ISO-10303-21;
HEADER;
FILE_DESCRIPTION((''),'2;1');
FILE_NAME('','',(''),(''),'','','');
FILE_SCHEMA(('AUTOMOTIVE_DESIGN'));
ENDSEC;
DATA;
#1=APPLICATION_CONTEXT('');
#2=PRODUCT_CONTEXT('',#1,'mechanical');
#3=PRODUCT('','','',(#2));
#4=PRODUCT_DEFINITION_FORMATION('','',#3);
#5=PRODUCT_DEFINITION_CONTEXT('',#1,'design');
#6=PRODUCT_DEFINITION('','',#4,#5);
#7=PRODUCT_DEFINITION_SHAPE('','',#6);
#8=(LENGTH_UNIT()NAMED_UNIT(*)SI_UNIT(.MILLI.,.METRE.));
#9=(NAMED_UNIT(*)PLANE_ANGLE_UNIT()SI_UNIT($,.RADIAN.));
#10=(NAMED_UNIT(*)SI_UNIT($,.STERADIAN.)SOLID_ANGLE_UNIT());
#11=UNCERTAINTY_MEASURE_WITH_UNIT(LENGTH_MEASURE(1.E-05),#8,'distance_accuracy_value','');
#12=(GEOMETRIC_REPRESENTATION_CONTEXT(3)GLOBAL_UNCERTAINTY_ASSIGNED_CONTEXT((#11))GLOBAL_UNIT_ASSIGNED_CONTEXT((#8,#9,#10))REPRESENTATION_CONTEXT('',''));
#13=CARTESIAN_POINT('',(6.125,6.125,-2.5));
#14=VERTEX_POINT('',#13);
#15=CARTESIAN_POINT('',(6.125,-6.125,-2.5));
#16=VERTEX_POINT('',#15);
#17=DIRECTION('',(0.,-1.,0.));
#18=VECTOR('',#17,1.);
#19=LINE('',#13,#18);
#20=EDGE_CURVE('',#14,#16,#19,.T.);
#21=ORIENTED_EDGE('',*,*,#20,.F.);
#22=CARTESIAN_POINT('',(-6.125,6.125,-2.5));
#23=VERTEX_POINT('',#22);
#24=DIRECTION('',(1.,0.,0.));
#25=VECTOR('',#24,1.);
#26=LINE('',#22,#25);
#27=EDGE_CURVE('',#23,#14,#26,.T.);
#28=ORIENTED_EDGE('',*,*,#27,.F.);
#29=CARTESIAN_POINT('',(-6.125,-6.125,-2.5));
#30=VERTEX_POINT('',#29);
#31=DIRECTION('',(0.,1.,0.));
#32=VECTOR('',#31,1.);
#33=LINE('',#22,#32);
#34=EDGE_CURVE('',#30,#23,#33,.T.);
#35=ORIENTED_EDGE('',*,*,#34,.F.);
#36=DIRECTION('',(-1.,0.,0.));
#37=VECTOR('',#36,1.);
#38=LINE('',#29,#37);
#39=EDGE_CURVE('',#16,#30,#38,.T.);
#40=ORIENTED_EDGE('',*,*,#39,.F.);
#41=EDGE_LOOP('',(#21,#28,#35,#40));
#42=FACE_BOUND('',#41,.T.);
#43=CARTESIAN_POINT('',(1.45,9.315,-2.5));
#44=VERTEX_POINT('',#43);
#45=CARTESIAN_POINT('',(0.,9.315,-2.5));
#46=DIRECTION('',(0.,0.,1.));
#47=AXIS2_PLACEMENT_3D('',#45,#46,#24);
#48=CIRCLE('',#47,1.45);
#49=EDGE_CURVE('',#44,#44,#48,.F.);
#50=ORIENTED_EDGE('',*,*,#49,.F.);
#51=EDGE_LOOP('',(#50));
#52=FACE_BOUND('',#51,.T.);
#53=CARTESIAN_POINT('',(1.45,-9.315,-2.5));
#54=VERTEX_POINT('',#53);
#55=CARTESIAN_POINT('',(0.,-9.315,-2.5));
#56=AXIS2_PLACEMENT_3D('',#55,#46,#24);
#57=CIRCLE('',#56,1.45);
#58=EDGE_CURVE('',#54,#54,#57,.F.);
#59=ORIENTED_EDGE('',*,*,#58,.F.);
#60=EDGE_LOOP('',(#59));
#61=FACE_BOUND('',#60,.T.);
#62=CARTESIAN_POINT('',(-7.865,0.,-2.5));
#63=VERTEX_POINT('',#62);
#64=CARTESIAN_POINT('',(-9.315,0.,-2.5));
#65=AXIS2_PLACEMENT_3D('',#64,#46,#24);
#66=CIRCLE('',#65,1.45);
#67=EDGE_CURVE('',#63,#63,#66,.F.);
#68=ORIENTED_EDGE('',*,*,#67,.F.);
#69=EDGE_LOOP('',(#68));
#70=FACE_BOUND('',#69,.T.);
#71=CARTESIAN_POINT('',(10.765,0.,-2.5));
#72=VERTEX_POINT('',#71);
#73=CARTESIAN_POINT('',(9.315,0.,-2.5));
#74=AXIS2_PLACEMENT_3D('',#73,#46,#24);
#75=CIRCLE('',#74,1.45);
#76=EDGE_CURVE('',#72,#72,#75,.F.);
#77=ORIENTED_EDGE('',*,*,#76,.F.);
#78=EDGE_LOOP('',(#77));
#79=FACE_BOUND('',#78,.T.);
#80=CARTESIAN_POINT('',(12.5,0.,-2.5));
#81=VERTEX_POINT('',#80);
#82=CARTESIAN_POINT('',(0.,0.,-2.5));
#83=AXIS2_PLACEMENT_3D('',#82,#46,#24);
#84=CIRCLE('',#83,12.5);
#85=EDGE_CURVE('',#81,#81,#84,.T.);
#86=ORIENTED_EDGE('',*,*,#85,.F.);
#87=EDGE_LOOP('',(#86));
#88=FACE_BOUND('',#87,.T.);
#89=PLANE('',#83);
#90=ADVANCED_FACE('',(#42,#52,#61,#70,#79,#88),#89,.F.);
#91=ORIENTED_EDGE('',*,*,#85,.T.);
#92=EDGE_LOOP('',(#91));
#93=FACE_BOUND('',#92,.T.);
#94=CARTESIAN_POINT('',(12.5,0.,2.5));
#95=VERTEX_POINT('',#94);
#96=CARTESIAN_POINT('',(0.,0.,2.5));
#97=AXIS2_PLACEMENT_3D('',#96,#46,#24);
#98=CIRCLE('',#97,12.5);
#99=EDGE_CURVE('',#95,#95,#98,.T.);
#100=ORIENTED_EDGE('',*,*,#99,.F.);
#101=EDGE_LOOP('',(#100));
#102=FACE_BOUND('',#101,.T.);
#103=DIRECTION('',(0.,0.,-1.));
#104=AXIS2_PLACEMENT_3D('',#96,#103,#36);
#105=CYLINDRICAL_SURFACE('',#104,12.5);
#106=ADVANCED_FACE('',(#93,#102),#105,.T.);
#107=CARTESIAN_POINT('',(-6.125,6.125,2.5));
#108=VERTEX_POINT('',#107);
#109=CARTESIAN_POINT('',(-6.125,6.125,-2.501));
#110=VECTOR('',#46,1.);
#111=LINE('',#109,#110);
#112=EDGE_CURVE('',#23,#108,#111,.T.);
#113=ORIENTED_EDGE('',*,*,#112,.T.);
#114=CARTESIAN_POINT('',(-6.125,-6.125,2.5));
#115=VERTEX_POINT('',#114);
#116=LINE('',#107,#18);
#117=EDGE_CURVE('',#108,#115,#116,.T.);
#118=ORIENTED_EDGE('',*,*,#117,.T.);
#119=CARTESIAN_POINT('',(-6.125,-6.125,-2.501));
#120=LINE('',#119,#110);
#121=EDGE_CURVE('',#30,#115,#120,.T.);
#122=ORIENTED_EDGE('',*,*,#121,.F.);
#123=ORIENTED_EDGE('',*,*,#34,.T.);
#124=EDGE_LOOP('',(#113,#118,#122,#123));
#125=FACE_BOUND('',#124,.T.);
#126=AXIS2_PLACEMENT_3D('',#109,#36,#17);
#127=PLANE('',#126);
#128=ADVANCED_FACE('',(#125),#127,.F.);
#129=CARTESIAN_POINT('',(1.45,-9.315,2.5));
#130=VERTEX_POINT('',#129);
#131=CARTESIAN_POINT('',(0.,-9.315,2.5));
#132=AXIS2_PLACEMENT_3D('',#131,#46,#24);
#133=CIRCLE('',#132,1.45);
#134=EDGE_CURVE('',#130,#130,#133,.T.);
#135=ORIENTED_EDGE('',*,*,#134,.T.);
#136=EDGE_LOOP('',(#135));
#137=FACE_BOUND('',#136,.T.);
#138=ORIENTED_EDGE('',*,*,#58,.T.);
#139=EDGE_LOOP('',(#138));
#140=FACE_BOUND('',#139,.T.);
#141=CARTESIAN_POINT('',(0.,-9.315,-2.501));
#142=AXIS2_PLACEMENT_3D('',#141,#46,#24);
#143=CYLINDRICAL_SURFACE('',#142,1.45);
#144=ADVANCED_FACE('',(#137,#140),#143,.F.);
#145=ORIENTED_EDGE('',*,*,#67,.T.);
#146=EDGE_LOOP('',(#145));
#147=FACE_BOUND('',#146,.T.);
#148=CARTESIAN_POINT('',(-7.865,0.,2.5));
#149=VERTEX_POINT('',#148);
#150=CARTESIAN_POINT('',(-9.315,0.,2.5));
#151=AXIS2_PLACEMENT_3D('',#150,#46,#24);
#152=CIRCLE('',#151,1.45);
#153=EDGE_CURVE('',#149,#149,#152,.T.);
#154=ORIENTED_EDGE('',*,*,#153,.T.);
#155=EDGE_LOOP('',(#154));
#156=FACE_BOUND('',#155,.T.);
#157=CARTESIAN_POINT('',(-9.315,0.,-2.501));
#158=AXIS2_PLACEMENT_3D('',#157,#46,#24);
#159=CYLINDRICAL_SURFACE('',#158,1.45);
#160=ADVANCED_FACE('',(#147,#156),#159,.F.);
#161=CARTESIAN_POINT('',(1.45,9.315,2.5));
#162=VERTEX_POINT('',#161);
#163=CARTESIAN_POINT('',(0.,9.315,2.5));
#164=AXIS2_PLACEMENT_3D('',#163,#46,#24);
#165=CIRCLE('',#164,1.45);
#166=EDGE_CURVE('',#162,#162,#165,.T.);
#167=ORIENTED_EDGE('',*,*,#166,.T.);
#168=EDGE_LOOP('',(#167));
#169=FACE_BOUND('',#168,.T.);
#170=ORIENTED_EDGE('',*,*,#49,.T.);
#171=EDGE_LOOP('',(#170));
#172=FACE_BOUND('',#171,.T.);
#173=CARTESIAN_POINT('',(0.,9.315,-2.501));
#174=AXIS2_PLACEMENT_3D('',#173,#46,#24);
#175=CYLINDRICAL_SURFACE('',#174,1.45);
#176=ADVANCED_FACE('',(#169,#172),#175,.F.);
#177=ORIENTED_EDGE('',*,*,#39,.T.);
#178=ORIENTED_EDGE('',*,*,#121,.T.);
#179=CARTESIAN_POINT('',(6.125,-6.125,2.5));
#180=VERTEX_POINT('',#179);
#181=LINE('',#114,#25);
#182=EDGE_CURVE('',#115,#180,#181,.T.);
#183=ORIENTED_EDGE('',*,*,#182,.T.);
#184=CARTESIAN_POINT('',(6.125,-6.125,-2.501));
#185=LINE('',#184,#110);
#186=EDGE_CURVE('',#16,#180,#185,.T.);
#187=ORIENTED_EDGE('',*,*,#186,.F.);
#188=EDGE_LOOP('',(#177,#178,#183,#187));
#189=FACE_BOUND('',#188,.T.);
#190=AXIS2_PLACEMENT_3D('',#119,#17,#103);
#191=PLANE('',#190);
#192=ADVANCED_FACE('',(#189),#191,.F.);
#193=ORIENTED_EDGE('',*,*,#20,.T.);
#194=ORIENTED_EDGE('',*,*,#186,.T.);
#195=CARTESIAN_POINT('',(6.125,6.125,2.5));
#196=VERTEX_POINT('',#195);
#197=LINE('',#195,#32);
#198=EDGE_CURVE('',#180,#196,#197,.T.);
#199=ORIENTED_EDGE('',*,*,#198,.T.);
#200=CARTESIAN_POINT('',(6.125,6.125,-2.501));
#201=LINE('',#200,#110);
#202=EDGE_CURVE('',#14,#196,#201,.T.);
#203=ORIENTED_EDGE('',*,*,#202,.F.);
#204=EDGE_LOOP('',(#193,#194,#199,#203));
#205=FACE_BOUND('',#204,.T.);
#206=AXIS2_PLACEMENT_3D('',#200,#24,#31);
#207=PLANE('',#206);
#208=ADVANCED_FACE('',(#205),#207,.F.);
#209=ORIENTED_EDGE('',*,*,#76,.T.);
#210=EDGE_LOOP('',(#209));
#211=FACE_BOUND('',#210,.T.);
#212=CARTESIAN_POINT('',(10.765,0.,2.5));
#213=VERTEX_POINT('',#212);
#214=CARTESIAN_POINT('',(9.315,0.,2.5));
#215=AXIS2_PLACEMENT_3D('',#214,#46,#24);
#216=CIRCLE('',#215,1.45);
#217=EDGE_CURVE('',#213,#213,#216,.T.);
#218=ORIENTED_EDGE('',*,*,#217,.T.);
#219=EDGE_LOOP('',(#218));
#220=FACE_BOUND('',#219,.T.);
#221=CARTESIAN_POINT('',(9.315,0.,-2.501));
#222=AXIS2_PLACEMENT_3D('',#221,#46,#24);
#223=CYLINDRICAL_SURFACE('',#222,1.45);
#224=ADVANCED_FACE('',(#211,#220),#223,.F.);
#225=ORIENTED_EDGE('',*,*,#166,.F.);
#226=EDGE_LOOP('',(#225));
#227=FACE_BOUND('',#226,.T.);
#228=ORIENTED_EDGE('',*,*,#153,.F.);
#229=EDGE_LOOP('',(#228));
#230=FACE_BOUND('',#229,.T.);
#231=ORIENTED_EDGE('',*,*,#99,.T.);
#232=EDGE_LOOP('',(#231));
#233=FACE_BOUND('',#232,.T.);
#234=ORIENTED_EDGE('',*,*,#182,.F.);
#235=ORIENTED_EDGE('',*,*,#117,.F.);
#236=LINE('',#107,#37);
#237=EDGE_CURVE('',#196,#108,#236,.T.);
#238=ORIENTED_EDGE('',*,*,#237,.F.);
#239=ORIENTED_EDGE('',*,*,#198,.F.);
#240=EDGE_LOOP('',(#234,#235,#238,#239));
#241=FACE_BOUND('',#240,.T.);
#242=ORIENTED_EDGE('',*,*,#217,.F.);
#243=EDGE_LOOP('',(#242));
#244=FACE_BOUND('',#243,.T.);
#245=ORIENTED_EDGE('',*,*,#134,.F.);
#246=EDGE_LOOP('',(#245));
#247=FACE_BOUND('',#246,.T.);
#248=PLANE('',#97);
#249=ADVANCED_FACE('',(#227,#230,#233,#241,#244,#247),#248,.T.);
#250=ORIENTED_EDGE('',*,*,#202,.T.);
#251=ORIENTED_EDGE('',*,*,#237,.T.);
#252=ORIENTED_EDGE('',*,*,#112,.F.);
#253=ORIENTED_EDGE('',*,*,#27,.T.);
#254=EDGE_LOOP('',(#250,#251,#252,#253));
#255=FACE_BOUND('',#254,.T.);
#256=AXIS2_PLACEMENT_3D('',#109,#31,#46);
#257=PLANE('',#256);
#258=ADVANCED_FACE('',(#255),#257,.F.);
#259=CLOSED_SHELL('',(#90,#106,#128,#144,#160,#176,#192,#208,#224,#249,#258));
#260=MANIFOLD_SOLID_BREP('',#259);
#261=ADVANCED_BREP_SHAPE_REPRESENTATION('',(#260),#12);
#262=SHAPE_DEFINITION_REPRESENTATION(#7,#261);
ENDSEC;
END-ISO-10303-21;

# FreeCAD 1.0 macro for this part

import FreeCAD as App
import Part
import Sketcher
Q = App.Units.Quantity

doc = App.newDocument("Part")
body = doc.addObject("PartDesign::Body", "Body")

sketch1 = body.newObject("Sketcher::SketchObject", "Sketch")
sketch1.AttachmentSupport = (doc.getObject("XY_Plane"), [""])
sketch1.MapMode = "FlatFace"
sketch1.addGeometry(Part.Circle(App.Vector(0, 0, 0), App.Vector(0, 0, 1), 12), False)
sketch1.addConstraint([
    Sketcher.Constraint("Coincident", 0, 3, -1, 1),
    Sketcher.Constraint("Diameter", 0, Q("25 mm")),
])
pad1 = body.newObject("PartDesign::Pad", "Pad")
pad1.Profile = sketch1
pad1.Length = 5
pad1.Midplane = True

sketch2 = body.newObject("Sketcher::SketchObject", "Sketch001")
sketch2.AttachmentSupport = (doc.getObject("XY_Plane"), [""])
sketch2.MapMode = "FlatFace"
sketch2.AttachmentOffset = App.Placement(App.Vector(0, 0, 2.5), App.Rotation())
sketch2.addGeometry([
    Part.LineSegment(App.Vector(-6, 6, 0), App.Vector(-6, -6, 0)),
    Part.LineSegment(App.Vector(-6, -6, 0), App.Vector(6, -6, 0)),
    Part.LineSegment(App.Vector(6, -6, 0), App.Vector(6, 6, 0)),
    Part.LineSegment(App.Vector(6, 6, 0), App.Vector(-6, 6, 0)),
], False)
sketch2.addConstraint([
    Sketcher.Constraint("Coincident", 0, 2, 1, 1),
    Sketcher.Constraint("Coincident", 1, 2, 2, 1),
    Sketcher.Constraint("Coincident", 2, 2, 3, 1),
    Sketcher.Constraint("Coincident", 3, 2, 0, 1),
    Sketcher.Constraint("Vertical", 0),
    Sketcher.Constraint("Horizontal", 1),
    Sketcher.Constraint("Vertical", 2),
    Sketcher.Constraint("Horizontal", 3),
    Sketcher.Constraint("Symmetric", 0, 2, 2, 2, -1, 1),
    Sketcher.Constraint("Equal", 3, 0),
    Sketcher.Constraint("DistanceX", 1, 1, 1, 2, Q("12.25 mm")),
])
pocket1 = body.newObject("PartDesign::Pocket", "Pocket")
pocket1.Profile = sketch2
pocket1.Type = "UpToFirst"

sketch3 = body.newObject("Sketcher::SketchObject", "Sketch002")
sketch3.AttachmentSupport = (doc.getObject("XY_Plane"), [""])
sketch3.MapMode = "FlatFace"
sketch3.AttachmentOffset = App.Placement(App.Vector(0, 0, 2.5), App.Rotation())
sketch3.addGeometry(Part.Circle(App.Vector(9.3, 0, 0), App.Vector(0, 0, 1), 1.4), False)
sketch3.addConstraint([
    Sketcher.Constraint("PointOnObject", 0, 3, -1),
    Sketcher.Constraint("Diameter", 0, Q("2.9 mm")),
    Sketcher.Constraint("DistanceX", -1, 1, 0, 3, Q("9.315 mm")),
])
pocket2 = body.newObject("PartDesign::Pocket", "Pocket001")
pocket2.Profile = sketch3
pocket2.Type = "UpToFirst"

sketch4 = body.newObject("Sketcher::SketchObject", "Sketch003")
sketch4.AttachmentSupport = (doc.getObject("XY_Plane"), [""])
sketch4.MapMode = "FlatFace"
sketch4.AttachmentOffset = App.Placement(App.Vector(0, 0, 2.5), App.Rotation())
sketch4.addGeometry(Part.Circle(App.Vector(0, -9.3, 0), App.Vector(0, 0, 1), 1.4), False)
sketch4.addConstraint([
    Sketcher.Constraint("PointOnObject", 0, 3, -2),
    Sketcher.Constraint("Diameter", 0, Q("2.9 mm")),
    Sketcher.Constraint("DistanceY", 0, 3, -1, 1, Q("9.315 mm")),
])
pocket3 = body.newObject("PartDesign::Pocket", "Pocket002")
pocket3.Profile = sketch4
pocket3.Type = "UpToFirst"

sketch5 = body.newObject("Sketcher::SketchObject", "Sketch004")
sketch5.AttachmentSupport = (doc.getObject("XY_Plane"), [""])
sketch5.MapMode = "FlatFace"
sketch5.AttachmentOffset = App.Placement(App.Vector(0, 0, 2.5), App.Rotation())
sketch5.addGeometry(Part.Circle(App.Vector(-9.3, 0, 0), App.Vector(0, 0, 1), 1.4), False)
sketch5.addConstraint([
    Sketcher.Constraint("PointOnObject", 0, 3, -1),
    Sketcher.Constraint("Diameter", 0, Q("2.9 mm")),
    Sketcher.Constraint("DistanceX", 0, 3, -1, 1, Q("9.315 mm")),
])
pocket4 = body.newObject("PartDesign::Pocket", "Pocket003")
pocket4.Profile = sketch5
pocket4.Type = "UpToFirst"

sketch6 = body.newObject("Sketcher::SketchObject", "Sketch005")
sketch6.AttachmentSupport = (doc.getObject("XY_Plane"), [""])
sketch6.MapMode = "FlatFace"
sketch6.AttachmentOffset = App.Placement(App.Vector(0, 0, 2.5), App.Rotation())
sketch6.addGeometry(Part.Circle(App.Vector(0, 9.3, 0), App.Vector(0, 0, 1), 1.4), False)
sketch6.addConstraint([
    Sketcher.Constraint("PointOnObject", 0, 3, -2),
    Sketcher.Constraint("Diameter", 0, Q("2.9 mm")),
    Sketcher.Constraint("DistanceY", -1, 1, 0, 3, Q("9.315 mm")),
])
pocket5 = body.newObject("PartDesign::Pocket", "Pocket004")
pocket5.Profile = sketch6
pocket5.Type = "UpToFirst"

doc.recompute()
